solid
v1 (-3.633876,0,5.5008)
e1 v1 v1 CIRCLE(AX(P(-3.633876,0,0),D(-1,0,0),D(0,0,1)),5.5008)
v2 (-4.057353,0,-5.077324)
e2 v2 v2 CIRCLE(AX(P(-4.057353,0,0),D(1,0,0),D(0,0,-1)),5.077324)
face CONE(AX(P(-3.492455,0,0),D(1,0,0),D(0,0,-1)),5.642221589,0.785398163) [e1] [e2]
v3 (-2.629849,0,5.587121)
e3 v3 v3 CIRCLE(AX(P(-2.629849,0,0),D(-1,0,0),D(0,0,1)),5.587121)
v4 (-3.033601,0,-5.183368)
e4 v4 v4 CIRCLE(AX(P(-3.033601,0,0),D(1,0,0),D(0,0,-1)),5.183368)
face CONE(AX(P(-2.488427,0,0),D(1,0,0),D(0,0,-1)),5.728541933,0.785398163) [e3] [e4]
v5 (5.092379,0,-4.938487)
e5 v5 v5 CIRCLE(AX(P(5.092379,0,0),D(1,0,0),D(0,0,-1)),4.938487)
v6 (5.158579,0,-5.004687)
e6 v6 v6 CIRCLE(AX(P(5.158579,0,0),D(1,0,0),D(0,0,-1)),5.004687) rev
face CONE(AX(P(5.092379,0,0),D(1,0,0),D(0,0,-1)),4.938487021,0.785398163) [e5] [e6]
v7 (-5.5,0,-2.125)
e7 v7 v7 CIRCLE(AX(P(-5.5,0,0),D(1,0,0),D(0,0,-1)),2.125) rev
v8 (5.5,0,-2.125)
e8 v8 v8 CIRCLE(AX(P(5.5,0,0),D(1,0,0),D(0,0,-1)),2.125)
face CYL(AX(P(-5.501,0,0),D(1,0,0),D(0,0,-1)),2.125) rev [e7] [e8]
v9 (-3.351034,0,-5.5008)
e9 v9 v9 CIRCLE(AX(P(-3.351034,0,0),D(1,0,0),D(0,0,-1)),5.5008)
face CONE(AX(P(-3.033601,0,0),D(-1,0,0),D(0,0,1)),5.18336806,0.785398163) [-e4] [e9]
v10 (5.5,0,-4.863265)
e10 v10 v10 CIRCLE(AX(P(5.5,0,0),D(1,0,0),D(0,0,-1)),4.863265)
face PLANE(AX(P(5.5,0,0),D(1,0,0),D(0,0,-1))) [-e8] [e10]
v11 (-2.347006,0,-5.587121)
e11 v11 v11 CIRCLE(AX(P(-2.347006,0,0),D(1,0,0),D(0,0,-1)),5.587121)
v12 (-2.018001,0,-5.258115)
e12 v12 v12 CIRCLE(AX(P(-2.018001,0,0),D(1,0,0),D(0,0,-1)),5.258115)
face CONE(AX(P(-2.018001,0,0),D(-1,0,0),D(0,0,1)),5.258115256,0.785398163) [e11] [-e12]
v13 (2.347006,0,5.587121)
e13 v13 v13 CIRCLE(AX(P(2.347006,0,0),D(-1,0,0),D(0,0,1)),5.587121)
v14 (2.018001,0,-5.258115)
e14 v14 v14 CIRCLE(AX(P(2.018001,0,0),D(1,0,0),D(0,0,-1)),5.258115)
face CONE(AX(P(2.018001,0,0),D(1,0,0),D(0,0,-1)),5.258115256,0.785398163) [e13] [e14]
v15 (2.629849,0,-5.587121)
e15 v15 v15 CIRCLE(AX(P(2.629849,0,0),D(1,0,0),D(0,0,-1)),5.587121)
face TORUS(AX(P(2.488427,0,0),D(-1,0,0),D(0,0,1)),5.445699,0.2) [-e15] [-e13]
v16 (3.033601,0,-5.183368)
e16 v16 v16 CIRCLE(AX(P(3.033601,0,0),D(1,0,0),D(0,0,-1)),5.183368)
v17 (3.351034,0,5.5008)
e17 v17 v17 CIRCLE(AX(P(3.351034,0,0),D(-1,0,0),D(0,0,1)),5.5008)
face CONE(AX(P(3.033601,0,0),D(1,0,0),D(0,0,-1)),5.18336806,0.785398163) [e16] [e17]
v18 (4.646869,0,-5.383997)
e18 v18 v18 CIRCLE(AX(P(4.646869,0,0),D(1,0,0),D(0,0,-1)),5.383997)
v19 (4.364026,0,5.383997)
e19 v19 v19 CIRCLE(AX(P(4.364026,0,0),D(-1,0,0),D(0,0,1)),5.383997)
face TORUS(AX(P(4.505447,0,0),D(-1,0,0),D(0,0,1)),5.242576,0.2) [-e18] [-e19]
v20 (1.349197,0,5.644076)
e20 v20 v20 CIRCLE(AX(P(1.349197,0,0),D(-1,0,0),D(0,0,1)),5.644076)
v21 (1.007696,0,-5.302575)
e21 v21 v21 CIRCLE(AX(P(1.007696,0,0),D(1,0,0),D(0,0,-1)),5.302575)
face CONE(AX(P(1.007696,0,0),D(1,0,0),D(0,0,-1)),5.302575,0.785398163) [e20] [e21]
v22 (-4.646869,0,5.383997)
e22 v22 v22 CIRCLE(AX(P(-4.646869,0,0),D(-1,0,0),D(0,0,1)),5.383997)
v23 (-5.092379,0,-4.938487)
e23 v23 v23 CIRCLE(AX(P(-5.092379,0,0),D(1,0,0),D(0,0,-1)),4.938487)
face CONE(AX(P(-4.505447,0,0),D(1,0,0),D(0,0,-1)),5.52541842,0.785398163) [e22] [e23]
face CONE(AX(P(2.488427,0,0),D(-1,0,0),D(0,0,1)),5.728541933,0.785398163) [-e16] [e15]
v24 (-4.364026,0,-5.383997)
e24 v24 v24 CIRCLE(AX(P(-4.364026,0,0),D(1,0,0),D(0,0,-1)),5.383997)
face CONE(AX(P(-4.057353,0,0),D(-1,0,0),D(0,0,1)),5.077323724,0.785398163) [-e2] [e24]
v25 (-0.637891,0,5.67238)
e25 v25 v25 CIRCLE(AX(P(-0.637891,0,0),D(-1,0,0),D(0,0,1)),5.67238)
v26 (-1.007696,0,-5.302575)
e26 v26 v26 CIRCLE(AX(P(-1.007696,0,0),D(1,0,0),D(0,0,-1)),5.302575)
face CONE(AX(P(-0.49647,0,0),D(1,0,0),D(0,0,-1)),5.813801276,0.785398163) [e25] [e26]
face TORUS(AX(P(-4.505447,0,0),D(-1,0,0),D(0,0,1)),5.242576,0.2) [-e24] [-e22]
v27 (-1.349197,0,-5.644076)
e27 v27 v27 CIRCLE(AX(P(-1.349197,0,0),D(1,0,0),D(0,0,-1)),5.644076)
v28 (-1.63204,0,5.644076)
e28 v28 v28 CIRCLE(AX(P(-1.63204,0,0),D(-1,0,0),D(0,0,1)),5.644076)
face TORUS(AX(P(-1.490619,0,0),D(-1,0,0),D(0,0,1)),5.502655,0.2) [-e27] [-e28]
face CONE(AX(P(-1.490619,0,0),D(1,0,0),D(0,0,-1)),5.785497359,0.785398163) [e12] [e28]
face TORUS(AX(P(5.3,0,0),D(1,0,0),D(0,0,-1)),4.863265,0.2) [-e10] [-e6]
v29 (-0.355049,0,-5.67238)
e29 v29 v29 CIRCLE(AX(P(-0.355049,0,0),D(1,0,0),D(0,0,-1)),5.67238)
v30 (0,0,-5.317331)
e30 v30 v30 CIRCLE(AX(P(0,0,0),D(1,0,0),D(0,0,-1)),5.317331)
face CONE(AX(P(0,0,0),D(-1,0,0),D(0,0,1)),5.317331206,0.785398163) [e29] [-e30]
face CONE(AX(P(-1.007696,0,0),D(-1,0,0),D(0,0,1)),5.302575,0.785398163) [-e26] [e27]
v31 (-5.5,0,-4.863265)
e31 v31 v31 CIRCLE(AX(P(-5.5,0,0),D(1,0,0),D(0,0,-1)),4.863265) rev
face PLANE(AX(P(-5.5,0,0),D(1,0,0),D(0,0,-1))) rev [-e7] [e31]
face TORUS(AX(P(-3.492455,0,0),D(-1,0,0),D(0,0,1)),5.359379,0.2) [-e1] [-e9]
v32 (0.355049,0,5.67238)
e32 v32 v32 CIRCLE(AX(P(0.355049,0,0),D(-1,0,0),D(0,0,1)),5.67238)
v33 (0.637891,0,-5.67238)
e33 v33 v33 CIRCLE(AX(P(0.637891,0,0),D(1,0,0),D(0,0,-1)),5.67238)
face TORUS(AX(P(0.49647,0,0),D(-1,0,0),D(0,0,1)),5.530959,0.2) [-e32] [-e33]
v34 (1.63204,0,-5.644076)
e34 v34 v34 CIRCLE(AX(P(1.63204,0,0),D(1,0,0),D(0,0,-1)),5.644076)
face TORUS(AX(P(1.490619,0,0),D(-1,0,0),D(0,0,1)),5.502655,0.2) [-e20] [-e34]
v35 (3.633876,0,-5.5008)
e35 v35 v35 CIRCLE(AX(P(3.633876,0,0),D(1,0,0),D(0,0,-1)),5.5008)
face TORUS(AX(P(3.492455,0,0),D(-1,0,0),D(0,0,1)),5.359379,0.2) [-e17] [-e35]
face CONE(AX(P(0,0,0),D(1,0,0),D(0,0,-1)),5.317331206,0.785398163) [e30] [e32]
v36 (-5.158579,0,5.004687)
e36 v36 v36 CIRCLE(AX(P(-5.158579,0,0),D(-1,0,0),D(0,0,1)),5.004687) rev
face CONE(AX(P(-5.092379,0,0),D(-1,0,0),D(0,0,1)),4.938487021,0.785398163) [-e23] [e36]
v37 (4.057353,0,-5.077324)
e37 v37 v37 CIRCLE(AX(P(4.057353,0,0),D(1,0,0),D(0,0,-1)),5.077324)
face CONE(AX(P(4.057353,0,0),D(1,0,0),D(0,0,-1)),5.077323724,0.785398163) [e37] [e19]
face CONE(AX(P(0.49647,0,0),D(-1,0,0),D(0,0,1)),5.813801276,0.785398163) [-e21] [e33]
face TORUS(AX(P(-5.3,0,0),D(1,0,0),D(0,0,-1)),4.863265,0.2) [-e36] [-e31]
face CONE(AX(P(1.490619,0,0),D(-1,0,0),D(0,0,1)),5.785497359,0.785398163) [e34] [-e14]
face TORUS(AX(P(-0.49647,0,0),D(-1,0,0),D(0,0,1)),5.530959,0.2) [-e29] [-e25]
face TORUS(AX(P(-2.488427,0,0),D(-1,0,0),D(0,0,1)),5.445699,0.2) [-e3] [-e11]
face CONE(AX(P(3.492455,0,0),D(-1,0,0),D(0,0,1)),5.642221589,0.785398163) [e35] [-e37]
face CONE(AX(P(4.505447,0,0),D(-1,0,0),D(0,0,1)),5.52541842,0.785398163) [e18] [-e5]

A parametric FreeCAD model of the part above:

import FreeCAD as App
import Part
import Sketcher

V = App.Vector
Q = App.Units.Quantity


def edges_at(feature, points):
    """Names of the edges that pass closest to the given points."""
    edges = feature.Shape.Edges
    near = lambda p: min(range(len(edges)), key=lambda i: edges[i].distToShape(Part.Vertex(*p))[0])
    return sorted({f"Edge{near(p) + 1}" for p in points})

doc = App.newDocument("Part")
body = doc.addObject("PartDesign::Body", "Body")

sketch1 = body.newObject("Sketcher::SketchObject", "Sketch")
sketch1.AttachmentSupport = (doc.getObject("YZ_Plane"), [""])
sketch1.MapMode = "FlatFace"
sketch1.addGeometry(Part.Circle(V(0, 0, 0), V(0, 0, 1), 4.9), False)
sketch1.addConstraint([
    Sketcher.Constraint("Coincident", 0, 3, -1, 1),
    Sketcher.Constraint("Diameter", 0, Q("9.75 mm")),
])
pad1 = body.newObject("PartDesign::Pad", "Pad")
pad1.Profile = sketch1
pad1.Length = 11
pad1.Midplane = True

sketch2 = body.newObject("Sketcher::SketchObject", "Sketch001")
sketch2.AttachmentSupport = (doc.getObject("XZ_Plane"), [""])
sketch2.MapMode = "FlatFace"
sketch2.addGeometry([
    Part.LineSegment(V(-5.5, -5.35, 0), V(-5.5, -4.88, 0)),
    Part.LineSegment(V(-5.5, -4.88, 0), V(5.5, -4.88, 0)),
    Part.LineSegment(V(5.5, -4.88, 0), V(5.5, -5.35, 0)),
    Part.LineSegment(V(5.5, -5.35, 0), V(5.09, -4.94, 0)),
    Part.LineSegment(V(5.09, -4.94, 0), V(4.51, -5.53, 0)),
    Part.LineSegment(V(4.51, -5.53, 0), V(4.06, -5.08, 0)),
    Part.LineSegment(V(4.06, -5.08, 0), V(3.49, -5.64, 0)),
    Part.LineSegment(V(3.49, -5.64, 0), V(3.03, -5.18, 0)),
    Part.LineSegment(V(3.03, -5.18, 0), V(2.49, -5.73, 0)),
    Part.LineSegment(V(2.49, -5.73, 0), V(2.02, -5.26, 0)),
    Part.LineSegment(V(2.02, -5.26, 0), V(1.49, -5.79, 0)),
    Part.LineSegment(V(1.49, -5.79, 0), V(1.01, -5.3, 0)),
    Part.LineSegment(V(1.01, -5.3, 0), V(0.5, -5.81, 0)),
    Part.LineSegment(V(0.5, -5.81, 0), V(0, -5.32, 0)),
    Part.LineSegment(V(0, -5.32, 0), V(-0.5, -5.81, 0)),
    Part.LineSegment(V(-0.5, -5.81, 0), V(-1.01, -5.3, 0)),
    Part.LineSegment(V(-1.01, -5.3, 0), V(-1.49, -5.79, 0)),
    Part.LineSegment(V(-1.49, -5.79, 0), V(-2.02, -5.26, 0)),
    Part.LineSegment(V(-2.02, -5.26, 0), V(-2.49, -5.73, 0)),
    Part.LineSegment(V(-2.49, -5.73, 0), V(-3.03, -5.18, 0)),
    Part.LineSegment(V(-3.03, -5.18, 0), V(-3.49, -5.64, 0)),
    Part.LineSegment(V(-3.49, -5.64, 0), V(-4.06, -5.08, 0)),
    Part.LineSegment(V(-4.06, -5.08, 0), V(-4.51, -5.53, 0)),
    Part.LineSegment(V(-4.51, -5.53, 0), V(-5.09, -4.94, 0)),
    Part.LineSegment(V(-5.09, -4.94, 0), V(-5.5, -5.35, 0)),
], False)
sketch2.addConstraint([
    Sketcher.Constraint("Coincident", 0, 2, 1, 1),
    Sketcher.Constraint("Coincident", 1, 2, 2, 1),
    Sketcher.Constraint("Coincident", 2, 2, 3, 1),
    Sketcher.Constraint("Coincident", 3, 2, 4, 1),
    Sketcher.Constraint("Coincident", 4, 2, 5, 1),
    Sketcher.Constraint("Coincident", 5, 2, 6, 1),
    Sketcher.Constraint("Coincident", 6, 2, 7, 1),
    Sketcher.Constraint("Coincident", 7, 2, 8, 1),
    Sketcher.Constraint("Coincident", 8, 2, 9, 1),
    Sketcher.Constraint("Coincident", 9, 2, 10, 1),
    Sketcher.Constraint("Coincident", 10, 2, 11, 1),
    Sketcher.Constraint("Coincident", 11, 2, 12, 1),
    Sketcher.Constraint("Coincident", 12, 2, 13, 1),
    Sketcher.Constraint("Coincident", 13, 2, 14, 1),
    Sketcher.Constraint("Coincident", 14, 2, 15, 1),
    Sketcher.Constraint("Coincident", 15, 2, 16, 1),
    Sketcher.Constraint("Coincident", 16, 2, 17, 1),
    Sketcher.Constraint("Coincident", 17, 2, 18, 1),
    Sketcher.Constraint("Coincident", 18, 2, 19, 1),
    Sketcher.Constraint("Coincident", 19, 2, 20, 1),
    Sketcher.Constraint("Coincident", 20, 2, 21, 1),
    Sketcher.Constraint("Coincident", 21, 2, 22, 1),
    Sketcher.Constraint("Coincident", 22, 2, 23, 1),
    Sketcher.Constraint("Coincident", 23, 2, 24, 1),
    Sketcher.Constraint("Coincident", 24, 2, 0, 1),
    Sketcher.Constraint("Vertical", 0),
    Sketcher.Constraint("Horizontal", 1),
    Sketcher.Constraint("Vertical", 2),
    Sketcher.Constraint("Symmetric", 12, 2, 14, 2, -2),
    Sketcher.Constraint("Symmetric", 11, 2, 15, 2, -2),
    Sketcher.Constraint("Symmetric", 10, 2, 16, 2, -2),
    Sketcher.Constraint("Symmetric", 9, 2, 17, 2, -2),
    Sketcher.Constraint("Symmetric", 8, 2, 18, 2, -2),
    Sketcher.Constraint("Symmetric", 7, 2, 19, 2, -2),
    Sketcher.Constraint("Symmetric", 6, 2, 20, 2, -2),
    Sketcher.Constraint("Symmetric", 5, 2, 21, 2, -2),
    Sketcher.Constraint("Symmetric", 4, 2, 22, 2, -2),
    Sketcher.Constraint("Symmetric", 3, 2, 23, 2, -2),
    Sketcher.Constraint("Symmetric", 2, 2, 24, 2, -2),
    Sketcher.Constraint("PointOnObject", 13, 2, -2),
    Sketcher.Constraint("Perpendicular", 3, 4),
    Sketcher.Constraint("Perpendicular", 4, 5),
    Sketcher.Constraint("Perpendicular", 5, 6),
    Sketcher.Constraint("Perpendicular", 6, 7),
    Sketcher.Constraint("Perpendicular", 7, 8),
    Sketcher.Constraint("Perpendicular", 8, 9),
    Sketcher.Constraint("Perpendicular", 9, 10),
    Sketcher.Constraint("Perpendicular", 10, 11),
    Sketcher.Constraint("Perpendicular", 11, 12),
    Sketcher.Constraint("Perpendicular", 12, 13),
    Sketcher.Constraint("Perpendicular", 13, 14),
    Sketcher.Constraint("DistanceX", 1, 1, 1, 2, Q("11 mm")),
    Sketcher.Constraint("DistanceY", 0, 2, -1, 1, Q("4.875 mm")),
    Sketcher.Constraint("DistanceX", -1, 1, 9, 2, Q("2.018001 mm")),
    Sketcher.Constraint("Distance", 5, Q("0.633702 mm")),
    Sketcher.Constraint("DistanceY", 0, 1, 0, 2, Q("0.471108 mm")),
    Sketcher.Constraint("DistanceX", -1, 1, 7, 2, Q("3.033601 mm")),
    Sketcher.Constraint("DistanceY", 12, 2, -1, 1, Q("5.813801 mm")),
    Sketcher.Constraint("Distance", 10, Q("0.745831 mm")),
    Sketcher.Constraint("DistanceX", -1, 1, 3, 2, Q("5.092379 mm")),
    Sketcher.Constraint("DistanceY", 4, 2, -1, 1, Q("5.525418 mm")),
    Sketcher.Constraint("DistanceY", 6, 2, -1, 1, Q("5.642222 mm")),
    Sketcher.Constraint("DistanceY", 8, 2, -1, 1, Q("5.728542 mm")),
    Sketcher.Constraint("DistanceX", -1, 1, 12, 2, Q("0.49647 mm")),
])
revolution = body.newObject("PartDesign::Revolution", "Revolution")
revolution.Profile = sketch2
revolution.ReferenceAxis = (sketch2, ["H_Axis"])
revolution.Angle = 360

sketch3 = body.newObject("Sketcher::SketchObject", "Sketch002")
sketch3.AttachmentSupport = (doc.getObject("YZ_Plane"), [""])
sketch3.MapMode = "FlatFace"
sketch3.AttachmentOffset = App.Placement(V(0, 0, 5.5), App.Rotation())
sketch3.addGeometry(Part.Circle(V(0, 0, 0), V(0, 0, 1), 2.1), False)
sketch3.addConstraint([
    Sketcher.Constraint("Coincident", 0, 3, -1, 1),
    Sketcher.Constraint("Diameter", 0, Q("4.25 mm")),
])
pocket1 = body.newObject("PartDesign::Pocket", "Pocket")
pocket1.Profile = sketch3
pocket1.Type = "UpToFirst"
doc.recompute()

fillet = body.newObject("PartDesign::Fillet", "Fillet")
fillet.Base = (pocket1, edges_at(pocket1, [
    (5.5, 0, 5.346),
    (4.505, 0, 5.525),
    (3.492, 0, 5.642),
    (2.488, 0, 5.729),
    (1.491, 0, 5.785),
    (0.496, 0, 5.814),
    (-0.496, 0, 5.814),
    (-1.491, 0, 5.785),
    (-2.488, 0, 5.729),
    (-3.492, 0, 5.642),
    (-4.505, 0, 5.525),
    (-5.5, 0, 5.346),
]))
fillet.Radius = 0.2

doc.recompute()
